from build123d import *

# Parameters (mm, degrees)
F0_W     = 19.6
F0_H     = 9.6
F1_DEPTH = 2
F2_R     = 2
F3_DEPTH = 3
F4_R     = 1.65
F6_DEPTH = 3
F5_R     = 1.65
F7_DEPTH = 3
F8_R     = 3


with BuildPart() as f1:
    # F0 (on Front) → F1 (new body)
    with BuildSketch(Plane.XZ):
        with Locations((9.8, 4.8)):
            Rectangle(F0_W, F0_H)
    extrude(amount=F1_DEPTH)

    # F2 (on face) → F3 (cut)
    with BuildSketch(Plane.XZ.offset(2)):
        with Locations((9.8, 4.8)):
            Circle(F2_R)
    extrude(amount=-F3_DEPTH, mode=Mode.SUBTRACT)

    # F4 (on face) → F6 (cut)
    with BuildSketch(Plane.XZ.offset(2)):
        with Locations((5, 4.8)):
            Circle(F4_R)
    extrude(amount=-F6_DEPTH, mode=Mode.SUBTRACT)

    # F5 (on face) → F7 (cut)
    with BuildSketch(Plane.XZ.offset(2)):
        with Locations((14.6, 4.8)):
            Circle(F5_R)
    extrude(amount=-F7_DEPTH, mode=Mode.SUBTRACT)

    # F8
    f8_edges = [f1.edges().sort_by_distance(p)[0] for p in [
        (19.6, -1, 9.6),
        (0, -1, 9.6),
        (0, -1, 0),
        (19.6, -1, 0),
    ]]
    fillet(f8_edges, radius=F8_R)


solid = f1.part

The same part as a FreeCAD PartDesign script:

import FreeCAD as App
import Part
import Sketcher
from FreeCAD import Vector
Q = App.Units.Quantity


def edges_at(feature, points):
    """Names of the edges that pass closest to the given points."""
    edges = feature.Shape.Edges
    near = lambda p: min(range(len(edges)), key=lambda i: edges[i].distToShape(Part.Vertex(*p))[0])
    return sorted({f"Edge{near(p) + 1}" for p in points})


def add_polygon(sketch, points):
    """Adds a closed chain of lines whose ends are joined by coincident constraints."""
    first, n = sketch.GeometryCount, len(points)
    for a, b in zip(points, points[1:] + points[:1]):
        sketch.addGeometry(Part.LineSegment(App.Vector(*a, 0), App.Vector(*b, 0)), False)
    for i in range(n):
        sketch.addConstraint(Sketcher.Constraint("Coincident", first + i, 2, first + (i + 1) % n, 1))

doc = App.newDocument("Part")
body = doc.addObject("PartDesign::Body", "Body")

# Sketch on XZ plane
sketch1 = doc.addObject("Sketcher::SketchObject", "Sketch")
body.addObject(sketch1)
sketch1.AttachmentSupport = (doc.XZ_Plane, [""])
sketch1.MapMode = "FlatFace"
add_polygon(sketch1, [(0, 9.6), (0, 0), (19.6, 0), (19.6, 9.6)])  # lines 0-3
sketch1.addConstraint([
    Sketcher.Constraint("Vertical", 0),
    Sketcher.Constraint("Horizontal", 1),
    Sketcher.Constraint("Vertical", 2),
    Sketcher.Constraint("Horizontal", 3),
    Sketcher.Constraint("Coincident", 0, 2, -1, 1),
    Sketcher.Constraint("DistanceX", 1, 1, 1, 2, Q("19.6 mm")),
    Sketcher.Constraint("DistanceY", 0, 2, 0, 1, Q("9.6 mm")),
])
pad1 = doc.addObject("PartDesign::Pad", "Pad")
body.addObject(pad1)
pad1.Profile = sketch1
pad1.Length = 2

# Sketch on XZ plane
sketch2 = doc.addObject("Sketcher::SketchObject", "Sketch001")
body.addObject(sketch2)
sketch2.AttachmentSupport = (doc.XZ_Plane, [""])
sketch2.MapMode = "FlatFace"
sketch2.AttachmentOffset = App.Placement(Vector(0, 0, 2), App.Rotation())
sketch2.addGeometry(Part.Circle(Vector(9.8, 4.8, 0), Vector(0, 0, 1), 2), False)
sketch2.addConstraint([
    Sketcher.Constraint("Diameter", 0, Q("4 mm")),
    Sketcher.Constraint("DistanceX", -1, 1, 0, 3, Q("9.8 mm")),
    Sketcher.Constraint("DistanceY", -1, 1, 0, 3, Q("4.8 mm")),
])
pocket1 = doc.addObject("PartDesign::Pocket", "Pocket")
body.addObject(pocket1)
pocket1.Profile = sketch2
pocket1.Length = 3

# Sketch on XZ plane
sketch3 = doc.addObject("Sketcher::SketchObject", "Sketch002")
body.addObject(sketch3)
sketch3.AttachmentSupport = (doc.XZ_Plane, [""])
sketch3.MapMode = "FlatFace"
sketch3.AttachmentOffset = App.Placement(Vector(0, 0, 2), App.Rotation())
sketch3.addGeometry(Part.Circle(Vector(5, 4.8, 0), Vector(0, 0, 1), 1.65), False)
sketch3.addConstraint([
    Sketcher.Constraint("Diameter", 0, Q("3.3 mm")),
    Sketcher.Constraint("DistanceX", -1, 1, 0, 3, Q("5 mm")),
    Sketcher.Constraint("DistanceY", -1, 1, 0, 3, Q("4.8 mm")),
])
pocket2 = doc.addObject("PartDesign::Pocket", "Pocket001")
body.addObject(pocket2)
pocket2.Profile = sketch3
pocket2.Length = 3

# Sketch on XZ plane
sketch4 = doc.addObject("Sketcher::SketchObject", "Sketch003")
body.addObject(sketch4)
sketch4.AttachmentSupport = (doc.XZ_Plane, [""])
sketch4.MapMode = "FlatFace"
sketch4.AttachmentOffset = App.Placement(Vector(0, 0, 2), App.Rotation())
sketch4.addGeometry(Part.Circle(Vector(14.6, 4.8, 0), Vector(0, 0, 1), 1.65), False)
sketch4.addConstraint([
    Sketcher.Constraint("Diameter", 0, Q("3.3 mm")),
    Sketcher.Constraint("DistanceX", -1, 1, 0, 3, Q("14.6 mm")),
    Sketcher.Constraint("DistanceY", -1, 1, 0, 3, Q("4.8 mm")),
])
pocket3 = doc.addObject("PartDesign::Pocket", "Pocket002")
body.addObject(pocket3)
pocket3.Profile = sketch4
pocket3.Length = 3
doc.recompute()

fillet = doc.addObject("PartDesign::Fillet", "Fillet")
body.addObject(fillet)
fillet.Base = (pocket3, edges_at(pocket3, [
    (19.6, -1, 9.6),
    (0, -1, 9.6),
    (0, -1, 0),
    (19.6, -1, 0),
]))
fillet.Radius = 3

doc.recompute()
